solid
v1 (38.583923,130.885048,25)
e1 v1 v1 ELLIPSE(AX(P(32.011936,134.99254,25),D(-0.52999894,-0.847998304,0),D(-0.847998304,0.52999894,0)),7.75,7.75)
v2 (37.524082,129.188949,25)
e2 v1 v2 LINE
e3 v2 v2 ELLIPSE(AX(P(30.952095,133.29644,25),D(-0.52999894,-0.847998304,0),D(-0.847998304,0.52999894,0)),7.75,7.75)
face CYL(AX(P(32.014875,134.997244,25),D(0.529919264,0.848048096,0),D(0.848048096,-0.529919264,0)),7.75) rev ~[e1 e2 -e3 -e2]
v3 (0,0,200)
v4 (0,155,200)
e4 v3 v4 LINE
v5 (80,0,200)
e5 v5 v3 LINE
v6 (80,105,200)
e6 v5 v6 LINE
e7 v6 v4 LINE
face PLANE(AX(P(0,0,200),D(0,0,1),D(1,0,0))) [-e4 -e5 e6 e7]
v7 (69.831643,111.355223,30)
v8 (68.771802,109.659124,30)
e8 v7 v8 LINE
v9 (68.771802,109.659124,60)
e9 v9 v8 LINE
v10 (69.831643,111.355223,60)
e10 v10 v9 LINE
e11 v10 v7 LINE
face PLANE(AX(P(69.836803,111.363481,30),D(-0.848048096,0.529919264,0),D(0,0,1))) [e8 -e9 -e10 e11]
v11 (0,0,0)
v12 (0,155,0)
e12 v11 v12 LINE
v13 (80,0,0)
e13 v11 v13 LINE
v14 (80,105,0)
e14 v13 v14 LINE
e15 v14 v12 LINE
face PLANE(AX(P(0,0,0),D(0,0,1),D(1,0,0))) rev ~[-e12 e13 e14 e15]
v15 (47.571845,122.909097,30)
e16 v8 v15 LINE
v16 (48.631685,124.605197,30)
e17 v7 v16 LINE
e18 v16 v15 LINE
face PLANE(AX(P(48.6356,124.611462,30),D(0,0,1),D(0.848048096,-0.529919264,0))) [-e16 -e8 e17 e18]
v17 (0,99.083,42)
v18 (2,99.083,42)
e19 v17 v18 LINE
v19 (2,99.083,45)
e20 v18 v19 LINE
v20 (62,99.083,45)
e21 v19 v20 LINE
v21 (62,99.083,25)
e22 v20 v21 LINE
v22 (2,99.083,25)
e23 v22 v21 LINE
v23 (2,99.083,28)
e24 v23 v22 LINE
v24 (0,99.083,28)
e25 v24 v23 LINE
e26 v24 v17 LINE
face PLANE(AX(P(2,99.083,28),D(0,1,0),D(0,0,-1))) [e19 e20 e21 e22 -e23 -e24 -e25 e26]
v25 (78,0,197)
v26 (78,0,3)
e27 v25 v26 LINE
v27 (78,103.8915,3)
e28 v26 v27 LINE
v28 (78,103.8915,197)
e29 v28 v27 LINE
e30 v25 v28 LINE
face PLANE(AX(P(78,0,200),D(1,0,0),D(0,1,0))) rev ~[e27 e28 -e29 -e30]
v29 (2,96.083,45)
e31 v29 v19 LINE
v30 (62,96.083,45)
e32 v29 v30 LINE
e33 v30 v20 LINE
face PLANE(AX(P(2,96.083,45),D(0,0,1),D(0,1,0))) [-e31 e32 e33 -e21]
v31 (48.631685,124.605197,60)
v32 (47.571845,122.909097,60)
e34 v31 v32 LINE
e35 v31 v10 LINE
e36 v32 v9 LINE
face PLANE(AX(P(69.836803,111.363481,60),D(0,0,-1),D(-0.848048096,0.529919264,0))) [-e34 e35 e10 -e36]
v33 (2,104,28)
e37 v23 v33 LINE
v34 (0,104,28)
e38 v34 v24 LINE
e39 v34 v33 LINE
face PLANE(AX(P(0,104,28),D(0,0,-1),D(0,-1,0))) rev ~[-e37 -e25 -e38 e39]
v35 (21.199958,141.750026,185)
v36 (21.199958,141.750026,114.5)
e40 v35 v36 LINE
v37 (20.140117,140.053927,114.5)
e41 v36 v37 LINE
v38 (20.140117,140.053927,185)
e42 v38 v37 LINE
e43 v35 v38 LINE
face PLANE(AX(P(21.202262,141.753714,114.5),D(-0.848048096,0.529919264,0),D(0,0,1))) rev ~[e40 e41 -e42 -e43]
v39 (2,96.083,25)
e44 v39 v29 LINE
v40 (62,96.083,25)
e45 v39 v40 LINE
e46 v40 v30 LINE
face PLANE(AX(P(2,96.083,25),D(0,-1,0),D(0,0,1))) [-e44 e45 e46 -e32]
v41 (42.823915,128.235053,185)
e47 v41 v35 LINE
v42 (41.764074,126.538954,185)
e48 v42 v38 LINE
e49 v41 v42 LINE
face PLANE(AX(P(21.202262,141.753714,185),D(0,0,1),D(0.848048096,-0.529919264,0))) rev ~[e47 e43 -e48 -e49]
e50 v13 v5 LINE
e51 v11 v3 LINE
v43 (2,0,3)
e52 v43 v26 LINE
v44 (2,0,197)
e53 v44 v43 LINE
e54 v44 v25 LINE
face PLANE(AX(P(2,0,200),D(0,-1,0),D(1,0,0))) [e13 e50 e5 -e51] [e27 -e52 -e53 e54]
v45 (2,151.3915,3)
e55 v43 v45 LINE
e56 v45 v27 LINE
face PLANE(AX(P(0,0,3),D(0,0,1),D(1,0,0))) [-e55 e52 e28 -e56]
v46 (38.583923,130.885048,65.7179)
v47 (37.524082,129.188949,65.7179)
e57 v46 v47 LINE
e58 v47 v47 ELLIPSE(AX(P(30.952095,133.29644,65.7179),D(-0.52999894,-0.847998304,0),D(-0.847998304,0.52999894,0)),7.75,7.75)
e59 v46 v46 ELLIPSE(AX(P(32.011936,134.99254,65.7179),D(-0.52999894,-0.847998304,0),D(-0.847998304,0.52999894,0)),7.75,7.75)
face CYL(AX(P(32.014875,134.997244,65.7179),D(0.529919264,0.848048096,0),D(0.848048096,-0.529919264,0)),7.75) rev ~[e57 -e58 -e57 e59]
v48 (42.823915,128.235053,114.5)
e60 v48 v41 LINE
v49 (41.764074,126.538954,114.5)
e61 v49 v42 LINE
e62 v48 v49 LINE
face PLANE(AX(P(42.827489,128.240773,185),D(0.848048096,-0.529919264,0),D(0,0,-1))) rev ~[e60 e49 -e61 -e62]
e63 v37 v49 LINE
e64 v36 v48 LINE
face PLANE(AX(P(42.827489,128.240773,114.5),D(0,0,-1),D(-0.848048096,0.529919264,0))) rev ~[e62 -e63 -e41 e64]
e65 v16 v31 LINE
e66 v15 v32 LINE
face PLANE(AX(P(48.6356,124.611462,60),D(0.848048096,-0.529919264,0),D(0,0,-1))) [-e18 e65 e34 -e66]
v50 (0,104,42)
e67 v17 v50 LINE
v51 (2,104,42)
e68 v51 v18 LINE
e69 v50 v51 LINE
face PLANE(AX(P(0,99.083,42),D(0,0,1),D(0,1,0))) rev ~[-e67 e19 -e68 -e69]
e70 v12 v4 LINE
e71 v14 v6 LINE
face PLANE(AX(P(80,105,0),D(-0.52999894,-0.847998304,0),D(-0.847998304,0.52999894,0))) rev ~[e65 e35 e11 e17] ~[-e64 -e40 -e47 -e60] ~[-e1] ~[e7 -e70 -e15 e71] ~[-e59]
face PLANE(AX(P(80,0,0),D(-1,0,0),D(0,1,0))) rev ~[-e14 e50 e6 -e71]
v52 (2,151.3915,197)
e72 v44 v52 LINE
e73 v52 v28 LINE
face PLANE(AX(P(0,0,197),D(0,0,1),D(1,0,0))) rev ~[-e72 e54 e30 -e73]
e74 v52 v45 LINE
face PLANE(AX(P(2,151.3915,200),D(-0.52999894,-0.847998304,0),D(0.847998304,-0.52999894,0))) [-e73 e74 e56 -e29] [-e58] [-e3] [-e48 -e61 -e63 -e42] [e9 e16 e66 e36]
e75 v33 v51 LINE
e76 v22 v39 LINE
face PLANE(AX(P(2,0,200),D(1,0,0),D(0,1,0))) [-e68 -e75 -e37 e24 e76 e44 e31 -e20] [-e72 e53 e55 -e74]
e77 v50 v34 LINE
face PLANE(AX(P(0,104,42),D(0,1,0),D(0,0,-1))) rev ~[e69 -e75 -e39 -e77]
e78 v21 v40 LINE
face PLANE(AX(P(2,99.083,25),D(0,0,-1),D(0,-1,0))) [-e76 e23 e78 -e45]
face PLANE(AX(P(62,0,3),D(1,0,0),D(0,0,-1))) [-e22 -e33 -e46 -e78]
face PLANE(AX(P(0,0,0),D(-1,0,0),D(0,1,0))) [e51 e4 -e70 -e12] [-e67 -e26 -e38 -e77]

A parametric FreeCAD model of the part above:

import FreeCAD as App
import Part
import Sketcher

V = App.Vector

doc = App.newDocument("Part")
body = doc.addObject("PartDesign::Body", "Body")

# Sketch on XY plane
sketch1 = body.newObject("Sketcher::SketchObject", "Sketch")
sketch1.AttachmentSupport = (doc.getObject("XY_Plane"), [""])
sketch1.MapMode = "FlatFace"
sketch1.addGeometry([
    Part.LineSegment(V(0, 155, 0), V(0, 0, 0)),
    Part.LineSegment(V(0, 0, 0), V(80, 0, 0)),
    Part.LineSegment(V(80, 0, 0), V(80, 105, 0)),
    Part.LineSegment(V(80, 105, 0), V(0, 155, 0)),
], False)
sketch1.addConstraint([
    Sketcher.Constraint("Coincident", 0, 2, 1, 1),
    Sketcher.Constraint("Coincident", 1, 2, 2, 1),
    Sketcher.Constraint("Coincident", 2, 2, 3, 1),
    Sketcher.Constraint("Coincident", 3, 2, 0, 1),
    Sketcher.Constraint("Vertical", 0),
    Sketcher.Constraint("Horizontal", 1),
    Sketcher.Constraint("Vertical", 2),
    Sketcher.Constraint("Coincident", 0, 2, -1, 1),
    Sketcher.Constraint("DistanceX", 1, 1, 1, 2, 80.0),
    Sketcher.Constraint("DistanceY", 0, 2, 0, 1, 155.0),
    Sketcher.Constraint("DistanceY", 2, 1, 2, 2, 105.0),
])
pad1 = body.newObject("PartDesign::Pad", "Pad")
pad1.Profile = sketch1
pad1.Length = 200

# Sketch on XY plane
sketch2 = body.newObject("Sketcher::SketchObject", "Sketch001")
sketch2.AttachmentSupport = (doc.getObject("XY_Plane"), [""])
sketch2.MapMode = "FlatFace"
sketch2.AttachmentOffset = App.Placement(V(0, 0, 200), App.Rotation())
sketch2.addGeometry([
    Part.LineSegment(V(2, 151, 0), V(2, 0, 0)),
    Part.LineSegment(V(2, 0, 0), V(78, 0, 0)),
    Part.LineSegment(V(78, 0, 0), V(78, 104, 0)),
    Part.LineSegment(V(78, 104, 0), V(2, 151, 0)),
], False)
sketch2.addConstraint([
    Sketcher.Constraint("Coincident", 0, 2, 1, 1),
    Sketcher.Constraint("Coincident", 1, 2, 2, 1),
    Sketcher.Constraint("Coincident", 2, 2, 3, 1),
    Sketcher.Constraint("Coincident", 3, 2, 0, 1),
    Sketcher.Constraint("Vertical", 0),
    Sketcher.Constraint("Horizontal", 1),
    Sketcher.Constraint("Vertical", 2),
    Sketcher.Constraint("PointOnObject", 0, 2, -1),
    Sketcher.Constraint("DistanceX", -1, 1, 0, 2, 2.0),
    Sketcher.Constraint("DistanceX", 1, 1, 1, 2, 76.0),
    Sketcher.Constraint("DistanceY", 2, 2, 3, 2, 47.5),
    Sketcher.Constraint("DistanceY", 0, 2, 0, 1, 151.3915),
])
pocket1 = body.newObject("PartDesign::Pocket", "Pocket")
pocket1.Profile = sketch2
pocket1.Length = 197

# Sketch on XY plane
sketch3 = body.newObject("Sketcher::SketchObject", "Sketch002")
sketch3.AttachmentSupport = (doc.getObject("XY_Plane"), [""])
sketch3.MapMode = "FlatFace"
sketch3.AttachmentOffset = App.Placement(V(0, 0, 200), App.Rotation())
sketch3.addGeometry([
    Part.LineSegment(V(2, 151, 0), V(2, 0, 0)),
    Part.LineSegment(V(2, 0, 0), V(78, 0, 0)),
    Part.LineSegment(V(78, 0, 0), V(78, 104, 0)),
    Part.LineSegment(V(78, 104, 0), V(2, 151, 0)),
], False)
sketch3.addConstraint([
    Sketcher.Constraint("Coincident", 0, 2, 1, 1),
    Sketcher.Constraint("Coincident", 1, 2, 2, 1),
    Sketcher.Constraint("Coincident", 2, 2, 3, 1),
    Sketcher.Constraint("Coincident", 3, 2, 0, 1),
    Sketcher.Constraint("Vertical", 0),
    Sketcher.Constraint("Horizontal", 1),
    Sketcher.Constraint("Vertical", 2),
    Sketcher.Constraint("PointOnObject", 0, 2, -1),
    Sketcher.Constraint("DistanceX", -1, 1, 0, 2, 2.0),
    Sketcher.Constraint("DistanceX", 1, 1, 1, 2, 76.0),
    Sketcher.Constraint("DistanceY", 2, 2, 3, 2, 47.5),
    Sketcher.Constraint("DistanceY", 0, 2, 0, 1, 151.3915),
])
pad2 = body.newObject("PartDesign::Pad", "Pad001")
pad2.Profile = sketch3
pad2.Length = 3
pad2.Reversed = True

# Sketch on YZ plane
sketch4 = body.newObject("Sketcher::SketchObject", "Sketch003")
sketch4.AttachmentSupport = (doc.getObject("YZ_Plane"), [""])
sketch4.MapMode = "FlatFace"
sketch4.addGeometry([
    Part.LineSegment(V(104, 28, 0), V(99.1, 28, 0)),
    Part.LineSegment(V(99.1, 28, 0), V(99.1, 42, 0)),
    Part.LineSegment(V(99.1, 42, 0), V(104, 42, 0)),
    Part.LineSegment(V(104, 42, 0), V(104, 28, 0)),
], False)
sketch4.addConstraint([
    Sketcher.Constraint("Coincident", 0, 2, 1, 1),
    Sketcher.Constraint("Coincident", 1, 2, 2, 1),
    Sketcher.Constraint("Coincident", 2, 2, 3, 1),
    Sketcher.Constraint("Coincident", 3, 2, 0, 1),
    Sketcher.Constraint("Horizontal", 0),
    Sketcher.Constraint("Vertical", 1),
    Sketcher.Constraint("Horizontal", 2),
    Sketcher.Constraint("Vertical", 3),
    Sketcher.Constraint("DistanceY", -1, 1, 0, 2, 28.0),
    Sketcher.Constraint("DistanceY", 1, 1, 1, 2, 14.0),
    Sketcher.Constraint("DistanceX", -1, 1, 2, 2, 104.0),
    Sketcher.Constraint("DistanceX", 0, 2, 0, 1, 4.917),
])
pocket2 = body.newObject("PartDesign::Pocket", "Pocket001")
pocket2.Profile = sketch4
pocket2.Length = 10
pocket2.Reversed = True

# Sketch on YZ plane
sketch5 = body.newObject("Sketcher::SketchObject", "Sketch004")
sketch5.AttachmentSupport = (doc.getObject("YZ_Plane"), [""])
sketch5.MapMode = "FlatFace"
sketch5.AttachmentOffset = App.Placement(V(0, 0, 2), App.Rotation())
sketch5.addGeometry([
    Part.LineSegment(V(99.1, 25, 0), V(99.1, 45, 0)),
    Part.LineSegment(V(99.1, 45, 0), V(96.1, 45, 0)),
    Part.LineSegment(V(96.1, 45, 0), V(96.1, 25, 0)),
    Part.LineSegment(V(96.1, 25, 0), V(99.1, 25, 0)),
], False)
sketch5.addConstraint([
    Sketcher.Constraint("Coincident", 0, 2, 1, 1),
    Sketcher.Constraint("Coincident", 1, 2, 2, 1),
    Sketcher.Constraint("Coincident", 2, 2, 3, 1),
    Sketcher.Constraint("Coincident", 3, 2, 0, 1),
    Sketcher.Constraint("Vertical", 0),
    Sketcher.Constraint("Horizontal", 1),
    Sketcher.Constraint("Vertical", 2),
    Sketcher.Constraint("Horizontal", 3),
    Sketcher.Constraint("DistanceX", 1, 2, 1, 1, 3.0),
    Sketcher.Constraint("DistanceY", 0, 1, 0, 2, 20.0),
    Sketcher.Constraint("DistanceY", -1, 1, 0, 2, 45.0),
    Sketcher.Constraint("DistanceX", -1, 1, 0, 2, 99.083),
])
pad3 = body.newObject("PartDesign::Pad", "Pad002")
pad3.Profile = sketch5
pad3.Length = 60

# Sketch on an angled plane
sketch6 = body.newObject("Sketcher::SketchObject", "Sketch005")
sketch6.Placement = App.Placement(V(0, 155, 200), App.Rotation(V(0.848048096, -0.529919264, 0), V(0, 0, -0.999999999), V(0.529919264, 0.848048096, 0), "ZXY"))
sketch6.addGeometry([
    Part.LineSegment(V(25, 85, 0), V(25, 15, 0)),  # 0
    Part.LineSegment(V(25, 15, 0), V(50, 15, 0)),  # 1
    Part.LineSegment(V(50, 15, 0), V(50, 85, 0)),  # 2
    Part.LineSegment(V(50, 85, 0), V(25, 85, 0)),  # 3
    Part.Circle(V(38, 175, 0), V(0, 0, 1), 8),  # 4
    Part.Circle(V(38, 134, 0), V(0, 0, 1), 8),  # 5
    Part.LineSegment(V(57, 140, 0), V(82, 140, 0)),  # 6
    Part.LineSegment(V(82, 140, 0), V(82, 170, 0)),  # 7
    Part.LineSegment(V(82, 170, 0), V(57, 170, 0)),  # 8
    Part.LineSegment(V(57, 170, 0), V(57, 140, 0)),  # 9
], False)
sketch6.addConstraint([
    Sketcher.Constraint("Coincident", 0, 2, 1, 1),
    Sketcher.Constraint("Coincident", 1, 2, 2, 1),
    Sketcher.Constraint("Coincident", 2, 2, 3, 1),
    Sketcher.Constraint("Coincident", 3, 2, 0, 1),
    Sketcher.Constraint("Coincident", 6, 2, 7, 1),
    Sketcher.Constraint("Coincident", 7, 2, 8, 1),
    Sketcher.Constraint("Coincident", 8, 2, 9, 1),
    Sketcher.Constraint("Coincident", 9, 2, 6, 1),
    Sketcher.Constraint("Vertical", 0),
    Sketcher.Constraint("Horizontal", 1),
    Sketcher.Constraint("Vertical", 2),
    Sketcher.Constraint("Horizontal", 3),
    Sketcher.Constraint("Horizontal", 6),
    Sketcher.Constraint("Vertical", 7),
    Sketcher.Constraint("Horizontal", 8),
    Sketcher.Constraint("Vertical", 9),
    Sketcher.Constraint("Equal", 4, 5),
    Sketcher.Constraint("Vertical", 4, 3, 5, 3),
    Sketcher.Constraint("Diameter", 4, 15.5),
    Sketcher.Constraint("DistanceX", 6, 1, 6, 2, 25.0),
    Sketcher.Constraint("DistanceY", 7, 1, 7, 2, 30.0),
    Sketcher.Constraint("DistanceX", 1, 1, 1, 2, 25.5),
    Sketcher.Constraint("DistanceY", 0, 2, 0, 1, 70.5),
    Sketcher.Constraint("DistanceX", -1, 1, 0, 2, 25.0),
    Sketcher.Constraint("DistanceY", -1, 1, 0, 2, 15.0),
    Sketcher.Constraint("DistanceY", -1, 1, 4, 3, 175.0),
    Sketcher.Constraint("DistanceY", -1, 1, 6, 2, 140.0),
    Sketcher.Constraint("DistanceX", -1, 1, 4, 3, 37.75),
    Sketcher.Constraint("DistanceY", -1, 1, 5, 3, 134.282),
    Sketcher.Constraint("DistanceX", -1, 1, 6, 2, 82.3488),
])
pocket3 = body.newObject("PartDesign::Pocket", "Pocket002")
pocket3.Profile = sketch6
pocket3.Length = 10

doc.recompute()
